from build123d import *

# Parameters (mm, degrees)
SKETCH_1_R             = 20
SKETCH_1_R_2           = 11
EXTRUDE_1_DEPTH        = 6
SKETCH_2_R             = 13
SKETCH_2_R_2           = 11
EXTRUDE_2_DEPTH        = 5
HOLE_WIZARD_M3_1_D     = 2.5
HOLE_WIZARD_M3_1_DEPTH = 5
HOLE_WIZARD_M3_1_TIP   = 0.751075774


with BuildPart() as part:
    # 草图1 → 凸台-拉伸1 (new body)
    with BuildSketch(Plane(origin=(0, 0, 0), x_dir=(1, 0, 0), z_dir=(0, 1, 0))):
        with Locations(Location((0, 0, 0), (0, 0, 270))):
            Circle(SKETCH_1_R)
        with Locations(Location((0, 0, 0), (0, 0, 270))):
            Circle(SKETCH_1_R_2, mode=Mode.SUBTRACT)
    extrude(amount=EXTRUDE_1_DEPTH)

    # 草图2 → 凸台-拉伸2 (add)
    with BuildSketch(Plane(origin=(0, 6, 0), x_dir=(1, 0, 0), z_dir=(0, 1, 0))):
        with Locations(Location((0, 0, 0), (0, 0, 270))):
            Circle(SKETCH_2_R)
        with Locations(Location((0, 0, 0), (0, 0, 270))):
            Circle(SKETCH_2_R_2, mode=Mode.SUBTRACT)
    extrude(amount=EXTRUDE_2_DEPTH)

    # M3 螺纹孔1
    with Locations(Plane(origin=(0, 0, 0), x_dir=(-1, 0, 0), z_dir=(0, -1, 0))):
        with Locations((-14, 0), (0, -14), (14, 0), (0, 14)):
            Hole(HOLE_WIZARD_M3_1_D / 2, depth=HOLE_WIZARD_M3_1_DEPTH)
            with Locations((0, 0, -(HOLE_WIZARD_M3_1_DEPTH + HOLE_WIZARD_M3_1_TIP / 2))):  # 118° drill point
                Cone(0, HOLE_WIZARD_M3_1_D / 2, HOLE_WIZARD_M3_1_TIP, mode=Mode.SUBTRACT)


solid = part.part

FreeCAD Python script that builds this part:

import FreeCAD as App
import Part
import Sketcher
from FreeCAD import Vector

doc = App.newDocument("Part")
body = doc.addObject("PartDesign::Body", "Body")

sketch1 = doc.addObject("Sketcher::SketchObject", "Sketch")
body.addObject(sketch1)
sketch1.AttachmentSupport = (doc.XZ_Plane, [""])
sketch1.MapMode = "FlatFace"
sketch1.addGeometry([
    Part.Circle(Vector(0, 0, 0), Vector(0, 0, 1), 20),
    Part.Circle(Vector(0, 0, 0), Vector(0, 0, 1), 11),
], False)
sketch1.addConstraint([
    Sketcher.Constraint("Coincident", 0, 3, -1, 1),
    Sketcher.Constraint("Coincident", 1, 3, -1, 1),
    Sketcher.Constraint("Diameter", 0, 40.0),
    Sketcher.Constraint("Diameter", 1, 22.0),
])
pad1 = doc.addObject("PartDesign::Pad", "Pad")
body.addObject(pad1)
pad1.Profile = sketch1
pad1.Length = 6
pad1.Reversed = True

sketch2 = doc.addObject("Sketcher::SketchObject", "Sketch001")
body.addObject(sketch2)
sketch2.AttachmentSupport = (doc.XZ_Plane, [""])
sketch2.MapMode = "FlatFace"
sketch2.AttachmentOffset = App.Placement(Vector(0, 0, -6), App.Rotation())
sketch2.addGeometry([
    Part.Circle(Vector(0, 0, 0), Vector(0, 0, 1), 13),
    Part.Circle(Vector(0, 0, 0), Vector(0, 0, 1), 11),
], False)
sketch2.addConstraint([
    Sketcher.Constraint("Coincident", 0, 3, -1, 1),
    Sketcher.Constraint("Coincident", 1, 3, -1, 1),
    Sketcher.Constraint("Diameter", 0, 26.0),
    Sketcher.Constraint("Diameter", 1, 22.0),
])
pad2 = doc.addObject("PartDesign::Pad", "Pad001")
body.addObject(pad2)
pad2.Profile = sketch2
pad2.Length = 5
pad2.Reversed = True

sketch3 = doc.addObject("Sketcher::SketchObject", "Sketch002")
body.addObject(sketch3)
sketch3.AttachmentSupport = (doc.XZ_Plane, [""])
sketch3.MapMode = "FlatFace"
sketch3.addGeometry([
    Part.Circle(Vector(14, 0, 0), Vector(0, 0, 1), 1.2),
    Part.Circle(Vector(0, 14, 0), Vector(0, 0, 1), 1.2),
    Part.Circle(Vector(-14, 0, 0), Vector(0, 0, 1), 1.2),
    Part.Circle(Vector(0, -14, 0), Vector(0, 0, 1), 1.2),
], False)
sketch3.addConstraint([
    Sketcher.Constraint("Equal", 0, 1),
    Sketcher.Constraint("Equal", 1, 2),
    Sketcher.Constraint("Equal", 2, 3),
    Sketcher.Constraint("Symmetric", 0, 3, 2, 3, -1, 1),
    Sketcher.Constraint("Symmetric", 1, 3, 3, 3, -1, 1),
    Sketcher.Constraint("PointOnObject", 0, 3, -1),
    Sketcher.Constraint("PointOnObject", 1, 3, -2),
    Sketcher.Constraint("Diameter", 0, 2.5),
    Sketcher.Constraint("DistanceX", -1, 1, 0, 3, 14.0),
    Sketcher.Constraint("DistanceY", -1, 1, 1, 3, 14.0),
])
doc.recompute()
hole = doc.addObject("PartDesign::Hole", "Hole")
body.addObject(hole)
hole.Profile = sketch3
hole.ThreadType = "None"
hole.Diameter = 2.5
hole.DepthType = "Dimension"
hole.Depth = 5
hole.DrillPoint = "Angled"
hole.DrillPointAngle = 118

doc.recompute()
